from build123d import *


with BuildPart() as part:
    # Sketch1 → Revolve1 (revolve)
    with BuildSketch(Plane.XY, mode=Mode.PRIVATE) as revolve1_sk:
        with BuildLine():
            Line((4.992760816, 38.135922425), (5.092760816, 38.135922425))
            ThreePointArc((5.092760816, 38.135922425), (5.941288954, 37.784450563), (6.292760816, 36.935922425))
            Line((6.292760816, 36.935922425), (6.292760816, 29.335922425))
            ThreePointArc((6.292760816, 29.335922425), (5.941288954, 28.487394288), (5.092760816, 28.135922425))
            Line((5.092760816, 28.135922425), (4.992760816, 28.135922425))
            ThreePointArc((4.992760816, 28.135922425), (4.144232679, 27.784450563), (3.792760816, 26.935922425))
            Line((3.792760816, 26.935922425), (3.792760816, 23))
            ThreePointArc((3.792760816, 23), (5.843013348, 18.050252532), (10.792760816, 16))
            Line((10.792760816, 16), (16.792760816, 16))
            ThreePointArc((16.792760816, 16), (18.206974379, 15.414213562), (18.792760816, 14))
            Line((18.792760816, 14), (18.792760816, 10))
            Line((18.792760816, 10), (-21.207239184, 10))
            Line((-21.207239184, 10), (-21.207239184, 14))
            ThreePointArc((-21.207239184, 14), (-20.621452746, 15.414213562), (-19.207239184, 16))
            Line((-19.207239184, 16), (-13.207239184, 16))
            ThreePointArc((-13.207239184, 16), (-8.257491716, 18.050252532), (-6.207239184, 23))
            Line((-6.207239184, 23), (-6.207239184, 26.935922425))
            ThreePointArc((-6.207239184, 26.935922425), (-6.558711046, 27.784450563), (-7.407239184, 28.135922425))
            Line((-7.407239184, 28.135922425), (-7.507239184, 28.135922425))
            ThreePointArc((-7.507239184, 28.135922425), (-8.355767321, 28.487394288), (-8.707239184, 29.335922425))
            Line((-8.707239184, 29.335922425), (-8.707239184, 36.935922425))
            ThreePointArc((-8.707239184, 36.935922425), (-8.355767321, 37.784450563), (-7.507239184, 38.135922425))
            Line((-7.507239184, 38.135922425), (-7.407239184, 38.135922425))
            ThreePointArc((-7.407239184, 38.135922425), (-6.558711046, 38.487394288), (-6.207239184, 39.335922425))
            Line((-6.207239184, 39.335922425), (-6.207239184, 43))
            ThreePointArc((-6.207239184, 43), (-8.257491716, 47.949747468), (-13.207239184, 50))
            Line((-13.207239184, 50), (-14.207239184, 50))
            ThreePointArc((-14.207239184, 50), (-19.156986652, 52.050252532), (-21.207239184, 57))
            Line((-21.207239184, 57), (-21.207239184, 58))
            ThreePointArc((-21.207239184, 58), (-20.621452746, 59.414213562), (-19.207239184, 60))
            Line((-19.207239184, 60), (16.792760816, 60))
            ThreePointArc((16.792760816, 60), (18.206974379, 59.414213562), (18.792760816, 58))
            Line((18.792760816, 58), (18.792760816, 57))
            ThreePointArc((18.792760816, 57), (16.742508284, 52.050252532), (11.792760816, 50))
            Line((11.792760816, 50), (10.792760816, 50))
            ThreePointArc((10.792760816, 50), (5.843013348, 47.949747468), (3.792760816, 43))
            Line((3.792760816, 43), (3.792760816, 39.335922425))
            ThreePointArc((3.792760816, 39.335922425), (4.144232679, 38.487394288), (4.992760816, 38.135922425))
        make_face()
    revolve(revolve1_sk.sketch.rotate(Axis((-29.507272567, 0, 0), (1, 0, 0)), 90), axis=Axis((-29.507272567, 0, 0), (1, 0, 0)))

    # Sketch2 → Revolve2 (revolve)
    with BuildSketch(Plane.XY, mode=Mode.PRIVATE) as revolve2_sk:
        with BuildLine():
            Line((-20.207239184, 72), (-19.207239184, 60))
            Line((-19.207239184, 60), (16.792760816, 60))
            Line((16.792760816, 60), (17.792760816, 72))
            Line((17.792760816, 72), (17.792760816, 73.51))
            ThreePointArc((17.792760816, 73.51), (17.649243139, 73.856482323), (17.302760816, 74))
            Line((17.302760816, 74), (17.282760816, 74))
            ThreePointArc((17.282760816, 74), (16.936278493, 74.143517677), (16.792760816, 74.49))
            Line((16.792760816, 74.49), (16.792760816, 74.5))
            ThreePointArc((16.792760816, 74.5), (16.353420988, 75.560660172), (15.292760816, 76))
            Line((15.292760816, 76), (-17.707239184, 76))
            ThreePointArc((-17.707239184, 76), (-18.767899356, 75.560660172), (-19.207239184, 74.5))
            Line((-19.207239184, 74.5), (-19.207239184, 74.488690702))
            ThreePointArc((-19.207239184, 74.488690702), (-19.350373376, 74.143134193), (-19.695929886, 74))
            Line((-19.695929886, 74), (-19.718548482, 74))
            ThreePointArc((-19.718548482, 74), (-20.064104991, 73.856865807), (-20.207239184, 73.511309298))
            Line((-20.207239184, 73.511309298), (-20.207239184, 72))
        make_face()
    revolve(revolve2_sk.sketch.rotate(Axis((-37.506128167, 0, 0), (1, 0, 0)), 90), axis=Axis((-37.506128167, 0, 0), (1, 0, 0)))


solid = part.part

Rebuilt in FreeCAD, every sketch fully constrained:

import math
import FreeCAD as App
import Part
import Sketcher

V = App.Vector
Q = App.Units.Quantity

doc = App.newDocument("Part")
body = doc.addObject("PartDesign::Body", "Body")

sketch1 = doc.addObject("Sketcher::SketchObject", "Sketch")
body.addObject(sketch1)
sketch1.AttachmentSupport = (doc.XY_Plane, [""])
sketch1.MapMode = "FlatFace"
sketch1.addGeometry([
    Part.LineSegment(V(5.092761, 38.135922, 0), V(4.992761, 38.135922, 0)),
    Part.ArcOfCircle(Part.Circle(V(4.992761, 39.335922, 0), V(0, 0, 1), 1.2), math.radians(-180), math.radians(-90)),
    Part.LineSegment(V(3.792761, 39.335922, 0), V(3.792761, 43, 0)),
    Part.ArcOfCircle(Part.Circle(V(10.792761, 43, 0), V(0, 0, 1), 7), math.radians(90), math.radians(180)),
    Part.LineSegment(V(10.792761, 50, 0), V(11.792761, 50, 0)),
    Part.ArcOfCircle(Part.Circle(V(11.792761, 57, 0), V(0, 0, 1), 7), math.radians(-90), math.radians(0)),
    Part.LineSegment(V(18.792761, 57, 0), V(18.792761, 58, 0)),
    Part.ArcOfCircle(Part.Circle(V(16.792761, 58, 0), V(0, 0, 1), 2), math.radians(0), math.radians(90)),
    Part.LineSegment(V(16.792761, 60, 0), V(-19.207239, 60, 0)),
    Part.ArcOfCircle(Part.Circle(V(-19.207239, 58, 0), V(0, 0, 1), 2), math.radians(90), math.radians(180)),
    Part.LineSegment(V(-21.207239, 58, 0), V(-21.207239, 57, 0)),
    Part.ArcOfCircle(Part.Circle(V(-14.207239, 57, 0), V(0, 0, 1), 7), math.radians(-180), math.radians(-90)),
    Part.LineSegment(V(-14.207239, 50, 0), V(-13.207239, 50, 0)),
    Part.ArcOfCircle(Part.Circle(V(-13.207239, 43, 0), V(0, 0, 1), 7), math.radians(0), math.radians(90)),
    Part.LineSegment(V(-6.207239, 43, 0), V(-6.207239, 39.335922, 0)),
    Part.ArcOfCircle(Part.Circle(V(-7.407239, 39.335922, 0), V(0, 0, 1), 1.2), math.radians(-90), math.radians(0)),
    Part.LineSegment(V(-7.407239, 38.135922, 0), V(-7.507239, 38.135922, 0)),
    Part.ArcOfCircle(Part.Circle(V(-7.507239, 36.935922, 0), V(0, 0, 1), 1.2), math.radians(90), math.radians(180)),
    Part.LineSegment(V(-8.707239, 36.935922, 0), V(-8.707239, 29.335922, 0)),
    Part.ArcOfCircle(Part.Circle(V(-7.507239, 29.335922, 0), V(0, 0, 1), 1.2), math.radians(-180), math.radians(-90)),
    Part.LineSegment(V(-7.507239, 28.135922, 0), V(-7.407239, 28.135922, 0)),
    Part.ArcOfCircle(Part.Circle(V(-7.407239, 26.935922, 0), V(0, 0, 1), 1.2), math.radians(0), math.radians(90)),
    Part.LineSegment(V(-6.207239, 26.935922, 0), V(-6.207239, 23, 0)),
    Part.ArcOfCircle(Part.Circle(V(-13.207239, 23, 0), V(0, 0, 1), 7), math.radians(-90), math.radians(0)),
    Part.LineSegment(V(-13.207239, 16, 0), V(-19.207239, 16, 0)),
    Part.ArcOfCircle(Part.Circle(V(-19.207239, 14, 0), V(0, 0, 1), 2), math.radians(90), math.radians(180)),
    Part.LineSegment(V(-21.207239, 14, 0), V(-21.207239, 10, 0)),
    Part.LineSegment(V(-21.207239, 10, 0), V(18.792761, 10, 0)),
    Part.LineSegment(V(18.792761, 10, 0), V(18.792761, 14, 0)),
    Part.ArcOfCircle(Part.Circle(V(16.792761, 14, 0), V(0, 0, 1), 2), math.radians(0), math.radians(90)),
    Part.LineSegment(V(16.792761, 16, 0), V(10.792761, 16, 0)),
    Part.ArcOfCircle(Part.Circle(V(10.792761, 23, 0), V(0, 0, 1), 7), math.radians(-180), math.radians(-90)),
    Part.LineSegment(V(3.792761, 23, 0), V(3.792761, 26.935922, 0)),
    Part.ArcOfCircle(Part.Circle(V(4.992761, 26.935922, 0), V(0, 0, 1), 1.2), math.radians(90), math.radians(180)),
    Part.LineSegment(V(4.992761, 28.135922, 0), V(5.092761, 28.135922, 0)),
    Part.ArcOfCircle(Part.Circle(V(5.092761, 29.335922, 0), V(0, 0, 1), 1.2), math.radians(-90), math.radians(0)),
    Part.LineSegment(V(6.292761, 29.335922, 0), V(6.292761, 36.935922, 0)),
    Part.ArcOfCircle(Part.Circle(V(5.092761, 36.935922, 0), V(0, 0, 1), 1.2), math.radians(0), math.radians(90)),
], False)
sketch1.addConstraint([
    Sketcher.Constraint("Tangent", 0, 2, 1, 2),
    Sketcher.Constraint("Tangent", 1, 1, 2, 1),
    Sketcher.Constraint("Tangent", 2, 2, 3, 2),
    Sketcher.Constraint("Tangent", 3, 1, 4, 1),
    Sketcher.Constraint("Tangent", 4, 2, 5, 1),
    Sketcher.Constraint("Tangent", 5, 2, 6, 1),
    Sketcher.Constraint("Tangent", 6, 2, 7, 1),
    Sketcher.Constraint("Tangent", 7, 2, 8, 1),
    Sketcher.Constraint("Tangent", 8, 2, 9, 1),
    Sketcher.Constraint("Tangent", 9, 2, 10, 1),
    Sketcher.Constraint("Tangent", 10, 2, 11, 1),
    Sketcher.Constraint("Tangent", 11, 2, 12, 1),
    Sketcher.Constraint("Tangent", 12, 2, 13, 2),
    Sketcher.Constraint("Tangent", 13, 1, 14, 1),
    Sketcher.Constraint("Tangent", 14, 2, 15, 2),
    Sketcher.Constraint("Tangent", 15, 1, 16, 1),
    Sketcher.Constraint("Tangent", 16, 2, 17, 1),
    Sketcher.Constraint("Tangent", 17, 2, 18, 1),
    Sketcher.Constraint("Tangent", 18, 2, 19, 1),
    Sketcher.Constraint("Tangent", 19, 2, 20, 1),
    Sketcher.Constraint("Tangent", 20, 2, 21, 2),
    Sketcher.Constraint("Tangent", 21, 1, 22, 1),
    Sketcher.Constraint("Tangent", 22, 2, 23, 2),
    Sketcher.Constraint("Tangent", 23, 1, 24, 1),
    Sketcher.Constraint("Tangent", 24, 2, 25, 1),
    Sketcher.Constraint("Tangent", 25, 2, 26, 1),
    Sketcher.Constraint("Coincident", 26, 2, 27, 1),
    Sketcher.Constraint("Coincident", 27, 2, 28, 1),
    Sketcher.Constraint("Tangent", 28, 2, 29, 1),
    Sketcher.Constraint("Tangent", 29, 2, 30, 1),
    Sketcher.Constraint("Tangent", 30, 2, 31, 2),
    Sketcher.Constraint("Tangent", 31, 1, 32, 1),
    Sketcher.Constraint("Tangent", 32, 2, 33, 2),
    Sketcher.Constraint("Tangent", 33, 1, 34, 1),
    Sketcher.Constraint("Tangent", 34, 2, 35, 1),
    Sketcher.Constraint("Tangent", 35, 2, 36, 1),
    Sketcher.Constraint("Tangent", 36, 2, 37, 1),
    Sketcher.Constraint("Tangent", 37, 2, 0, 1),
    Sketcher.Constraint("Horizontal", 0),
    Sketcher.Constraint("Vertical", 2),
    Sketcher.Constraint("Horizontal", 4),
    Sketcher.Constraint("Vertical", 6),
    Sketcher.Constraint("Horizontal", 8),
    Sketcher.Constraint("Vertical", 10),
    Sketcher.Constraint("Horizontal", 12),
    Sketcher.Constraint("Vertical", 14),
    Sketcher.Constraint("Horizontal", 16),
    Sketcher.Constraint("Vertical", 18),
    Sketcher.Constraint("Horizontal", 20),
    Sketcher.Constraint("Vertical", 22),
    Sketcher.Constraint("Horizontal", 24),
    Sketcher.Constraint("Vertical", 26),
    Sketcher.Constraint("Horizontal", 27),
    Sketcher.Constraint("Vertical", 28),
    Sketcher.Constraint("Horizontal", 30),
    Sketcher.Constraint("Vertical", 32),
    Sketcher.Constraint("Horizontal", 34),
    Sketcher.Constraint("Vertical", 36),
    Sketcher.Constraint("Equal", 3, 5),
    Sketcher.Constraint("Equal", 7, 9),
    Sketcher.Constraint("Equal", 5, 11),
    Sketcher.Constraint("Equal", 11, 13),
    Sketcher.Constraint("Equal", 1, 15),
    Sketcher.Constraint("Equal", 15, 17),
    Sketcher.Constraint("Equal", 17, 19),
    Sketcher.Constraint("Equal", 19, 21),
    Sketcher.Constraint("Equal", 13, 23),
    Sketcher.Constraint("Equal", 9, 25),
    Sketcher.Constraint("Equal", 25, 29),
    Sketcher.Constraint("Equal", 23, 31),
    Sketcher.Constraint("Equal", 21, 33),
    Sketcher.Constraint("Equal", 33, 35),
    Sketcher.Constraint("Equal", 35, 37),
    Sketcher.Constraint("Horizontal", 5, 3, 11, 3),
    Sketcher.Constraint("Horizontal", 1, 3, 15, 3),
    Sketcher.Constraint("Horizontal", 25, 3, 29, 3),
    Sketcher.Constraint("Horizontal", 21, 3, 33, 3),
    Sketcher.Constraint("Vertical", 15, 3, 21, 3),
    Sketcher.Constraint("Vertical", 9, 3, 25, 3),
    Sketcher.Constraint("Vertical", 7, 3, 29, 3),
    Sketcher.Constraint("Vertical", 3, 3, 31, 3),
    Sketcher.Constraint("Equal", 4, 12),
    Sketcher.Constraint("Equal", 0, 16),
    Sketcher.Constraint("Equal", 12, 6),
    Sketcher.Constraint("Radius", 3, Q("7 mm")),
    Sketcher.Constraint("Radius", 7, Q("2 mm")),
    Sketcher.Constraint("Radius", 1, Q("1.2 mm")),
    Sketcher.Constraint("DistanceX", 4, 1, 4, 2, Q("1 mm")),
    Sketcher.Constraint("DistanceX", 8, 2, 8, 1, Q("36 mm")),
    Sketcher.Constraint("DistanceY", 26, 2, 26, 1, Q("4 mm")),
    Sketcher.Constraint("DistanceX", 0, 2, 0, 1, Q("0.1 mm")),
    Sketcher.Constraint("DistanceY", 18, 2, 18, 1, Q("7.6 mm")),
    Sketcher.Constraint("DistanceY", -1, 1, 3, 3, Q("43 mm")),
    Sketcher.Constraint("DistanceY", -1, 1, 23, 3, Q("23 mm")),
    Sketcher.Constraint("DistanceY", 2, 1, 2, 2, Q("3.664078 mm")),
    Sketcher.Constraint("DistanceX", -1, 1, 1, 3, Q("4.992761 mm")),
])
revolution = doc.addObject("PartDesign::Revolution", "Revolution")
body.addObject(revolution)
revolution.Profile = sketch1
revolution.ReferenceAxis = (sketch1, ["H_Axis"])
revolution.Angle = 360

sketch2 = doc.addObject("Sketcher::SketchObject", "Sketch001")
body.addObject(sketch2)
sketch2.AttachmentSupport = (doc.XY_Plane, [""])
sketch2.MapMode = "FlatFace"
sketch2.addGeometry([
    Part.LineSegment(V(-20.207239, 72, 0), V(-19.207239, 60, 0)),
    Part.LineSegment(V(-19.207239, 60, 0), V(16.792761, 60, 0)),
    Part.LineSegment(V(16.792761, 60, 0), V(17.792761, 72, 0)),
    Part.LineSegment(V(17.792761, 72, 0), V(17.792761, 73.51, 0)),
    Part.ArcOfCircle(Part.Circle(V(17.302761, 73.51, 0), V(0, 0, 1), 0.49), math.radians(0), math.radians(90)),
    Part.LineSegment(V(17.302761, 74, 0), V(17.282761, 74, 0)),
    Part.ArcOfCircle(Part.Circle(V(17.282761, 74.49, 0), V(0, 0, 1), 0.49), math.radians(180), math.radians(270)),
    Part.LineSegment(V(16.792761, 74.49, 0), V(16.792761, 74.5, 0)),
    Part.ArcOfCircle(Part.Circle(V(15.292761, 74.5, 0), V(0, 0, 1), 1.5), math.radians(0), math.radians(90)),
    Part.LineSegment(V(15.292761, 76, 0), V(-17.707239, 76, 0)),
    Part.ArcOfCircle(Part.Circle(V(-17.707239, 74.5, 0), V(0, 0, 1), 1.5), math.radians(90), math.radians(180)),
    Part.LineSegment(V(-19.207239, 74.5, 0), V(-19.207239, 74.488691, 0)),
    Part.ArcOfCircle(Part.Circle(V(-19.69593, 74.488691, 0), V(0, 0, 1), 0.488691), math.radians(-90), math.radians(0)),
    Part.LineSegment(V(-19.69593, 74, 0), V(-19.718548, 74, 0)),
    Part.ArcOfCircle(Part.Circle(V(-19.718548, 73.511309, 0), V(0, 0, 1), 0.488691), math.radians(90), math.radians(180)),
    Part.LineSegment(V(-20.207239, 73.511309, 0), V(-20.207239, 72, 0)),
], False)
sketch2.addConstraint([
    Sketcher.Constraint("Coincident", 0, 2, 1, 1),
    Sketcher.Constraint("Coincident", 1, 2, 2, 1),
    Sketcher.Constraint("Coincident", 2, 2, 3, 1),
    Sketcher.Constraint("Tangent", 3, 2, 4, 1),
    Sketcher.Constraint("Tangent", 4, 2, 5, 1),
    Sketcher.Constraint("Tangent", 5, 2, 6, 2),
    Sketcher.Constraint("Tangent", 6, 1, 7, 1),
    Sketcher.Constraint("Tangent", 7, 2, 8, 1),
    Sketcher.Constraint("Tangent", 8, 2, 9, 1),
    Sketcher.Constraint("Tangent", 9, 2, 10, 1),
    Sketcher.Constraint("Tangent", 10, 2, 11, 1),
    Sketcher.Constraint("Tangent", 11, 2, 12, 2),
    Sketcher.Constraint("Tangent", 12, 1, 13, 1),
    Sketcher.Constraint("Tangent", 13, 2, 14, 1),
    Sketcher.Constraint("Tangent", 14, 2, 15, 1),
    Sketcher.Constraint("Coincident", 15, 2, 0, 1),
    Sketcher.Constraint("Horizontal", 1),
    Sketcher.Constraint("Vertical", 3),
    Sketcher.Constraint("Horizontal", 5),
    Sketcher.Constraint("Vertical", 7),
    Sketcher.Constraint("Horizontal", 9),
    Sketcher.Constraint("Vertical", 11),
    Sketcher.Constraint("Horizontal", 13),
    Sketcher.Constraint("Vertical", 15),
    Sketcher.Constraint("Equal", 4, 6),
    Sketcher.Constraint("Equal", 8, 10),
    Sketcher.Constraint("Equal", 12, 14),
    Sketcher.Constraint("Horizontal", 5, 2, 12, 1),
    Sketcher.Constraint("Horizontal", 2, 2, 15, 2),
    Sketcher.Constraint("Vertical", 1, 2, 6, 1),
    Sketcher.Constraint("Vertical", 0, 2, 10, 2),
    Sketcher.Constraint("Equal", 0, 2),
    Sketcher.Constraint("Radius", 8, Q("1.5 mm")),
    Sketcher.Constraint("DistanceX", 1, 1, 1, 2, Q("36 mm")),
    Sketcher.Constraint("Radius", 4, Q("0.49 mm")),
    Sketcher.Constraint("DistanceY", -1, 1, 0, 2, Q("60 mm")),
    Sketcher.Constraint("DistanceY", -1, 1, 2, 2, Q("72 mm")),
    Sketcher.Constraint("DistanceY", -1, 1, 4, 2, Q("74 mm")),
    Sketcher.Constraint("DistanceY", -1, 1, 8, 2, Q("76 mm")),
    Sketcher.Constraint("DistanceX", 1, 2, 2, 2, Q("1 mm")),
    Sketcher.Constraint("Radius", 12, Q("0.488691 mm")),
    Sketcher.Constraint("DistanceX", -1, 1, 4, 3, Q("17.302761 mm")),
])
revolution2 = doc.addObject("PartDesign::Revolution", "Revolution001")
body.addObject(revolution2)
revolution2.Profile = sketch2
revolution2.ReferenceAxis = (sketch2, ["H_Axis"])
revolution2.Angle = 360

doc.recompute()
